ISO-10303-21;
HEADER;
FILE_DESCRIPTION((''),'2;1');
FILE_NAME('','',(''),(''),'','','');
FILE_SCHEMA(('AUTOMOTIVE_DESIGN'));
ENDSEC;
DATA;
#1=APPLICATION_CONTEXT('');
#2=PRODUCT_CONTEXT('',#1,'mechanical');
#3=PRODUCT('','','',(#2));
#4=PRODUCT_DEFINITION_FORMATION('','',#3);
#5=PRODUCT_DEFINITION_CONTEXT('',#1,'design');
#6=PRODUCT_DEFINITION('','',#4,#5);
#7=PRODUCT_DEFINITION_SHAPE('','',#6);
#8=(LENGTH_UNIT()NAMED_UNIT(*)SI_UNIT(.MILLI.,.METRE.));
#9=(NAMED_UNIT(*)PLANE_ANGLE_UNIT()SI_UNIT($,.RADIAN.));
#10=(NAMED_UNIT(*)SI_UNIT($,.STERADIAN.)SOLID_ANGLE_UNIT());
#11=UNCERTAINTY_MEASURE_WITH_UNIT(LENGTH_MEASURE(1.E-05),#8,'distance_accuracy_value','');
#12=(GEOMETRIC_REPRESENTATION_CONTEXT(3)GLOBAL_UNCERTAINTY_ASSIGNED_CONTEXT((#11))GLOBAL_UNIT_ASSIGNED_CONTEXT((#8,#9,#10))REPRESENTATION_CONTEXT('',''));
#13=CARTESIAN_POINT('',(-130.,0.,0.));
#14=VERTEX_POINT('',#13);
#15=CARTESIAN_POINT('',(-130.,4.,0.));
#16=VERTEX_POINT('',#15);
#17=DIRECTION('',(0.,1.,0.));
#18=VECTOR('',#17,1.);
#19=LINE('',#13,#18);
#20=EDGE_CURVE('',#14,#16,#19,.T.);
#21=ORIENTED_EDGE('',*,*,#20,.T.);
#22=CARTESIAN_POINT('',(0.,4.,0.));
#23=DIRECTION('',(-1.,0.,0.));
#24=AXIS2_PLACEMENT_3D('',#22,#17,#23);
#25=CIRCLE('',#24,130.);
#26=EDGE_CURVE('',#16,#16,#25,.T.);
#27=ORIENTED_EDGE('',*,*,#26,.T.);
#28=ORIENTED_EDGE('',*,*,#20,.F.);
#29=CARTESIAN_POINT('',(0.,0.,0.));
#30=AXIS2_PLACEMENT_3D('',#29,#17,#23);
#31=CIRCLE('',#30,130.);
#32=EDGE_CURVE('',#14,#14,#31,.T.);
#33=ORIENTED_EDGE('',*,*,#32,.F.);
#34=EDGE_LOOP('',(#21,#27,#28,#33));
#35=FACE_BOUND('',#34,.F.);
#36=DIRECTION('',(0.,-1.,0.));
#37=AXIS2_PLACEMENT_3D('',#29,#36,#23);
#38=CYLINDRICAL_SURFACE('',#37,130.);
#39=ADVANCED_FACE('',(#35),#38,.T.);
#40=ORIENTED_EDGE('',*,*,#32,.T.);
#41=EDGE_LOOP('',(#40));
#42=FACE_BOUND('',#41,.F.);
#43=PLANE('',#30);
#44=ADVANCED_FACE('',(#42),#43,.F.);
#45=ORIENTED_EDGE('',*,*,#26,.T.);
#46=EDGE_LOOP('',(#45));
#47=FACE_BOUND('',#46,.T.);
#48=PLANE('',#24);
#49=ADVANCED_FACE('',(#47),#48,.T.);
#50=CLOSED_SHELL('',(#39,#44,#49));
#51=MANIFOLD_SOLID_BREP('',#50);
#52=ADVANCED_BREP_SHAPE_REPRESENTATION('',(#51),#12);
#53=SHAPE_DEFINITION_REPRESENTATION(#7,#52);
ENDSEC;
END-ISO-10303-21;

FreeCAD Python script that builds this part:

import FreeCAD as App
import Part
import Sketcher

V = App.Vector
Q = App.Units.Quantity

doc = App.newDocument("Part")
params = doc.addObject("Spreadsheet::Sheet", "Params")
for row, (alias, value) in enumerate([
    ("sketch1_diameter", "260 mm"),
    ("pad1_length", "4 mm"),
], start=1):
    params.set(f"A{row}", alias)
    params.set(f"B{row}", "=" + value)
    params.setAlias(f"B{row}", alias)

body = doc.addObject("PartDesign::Body", "Body")

sketch1 = body.newObject("Sketcher::SketchObject", "Sketch")
sketch1.AttachmentSupport = (doc.getObject("XZ_Plane"), [""])
sketch1.MapMode = "FlatFace"
sketch1.addGeometry(Part.Circle(V(0, 0, 0), V(0, 0, 1), 130), False)
sketch1.addConstraint([
    Sketcher.Constraint("Coincident", 0, 3, -1, 1),
    Sketcher.Constraint("Diameter", 0, Q("260 mm")),
])
sketch1.setExpression("Constraints[1]", "Params.sketch1_diameter")
pad1 = body.newObject("PartDesign::Pad", "Pad")
pad1.Profile = sketch1
pad1.setExpression("Length", "Params.pad1_length")
pad1.Reversed = True

doc.recompute()
